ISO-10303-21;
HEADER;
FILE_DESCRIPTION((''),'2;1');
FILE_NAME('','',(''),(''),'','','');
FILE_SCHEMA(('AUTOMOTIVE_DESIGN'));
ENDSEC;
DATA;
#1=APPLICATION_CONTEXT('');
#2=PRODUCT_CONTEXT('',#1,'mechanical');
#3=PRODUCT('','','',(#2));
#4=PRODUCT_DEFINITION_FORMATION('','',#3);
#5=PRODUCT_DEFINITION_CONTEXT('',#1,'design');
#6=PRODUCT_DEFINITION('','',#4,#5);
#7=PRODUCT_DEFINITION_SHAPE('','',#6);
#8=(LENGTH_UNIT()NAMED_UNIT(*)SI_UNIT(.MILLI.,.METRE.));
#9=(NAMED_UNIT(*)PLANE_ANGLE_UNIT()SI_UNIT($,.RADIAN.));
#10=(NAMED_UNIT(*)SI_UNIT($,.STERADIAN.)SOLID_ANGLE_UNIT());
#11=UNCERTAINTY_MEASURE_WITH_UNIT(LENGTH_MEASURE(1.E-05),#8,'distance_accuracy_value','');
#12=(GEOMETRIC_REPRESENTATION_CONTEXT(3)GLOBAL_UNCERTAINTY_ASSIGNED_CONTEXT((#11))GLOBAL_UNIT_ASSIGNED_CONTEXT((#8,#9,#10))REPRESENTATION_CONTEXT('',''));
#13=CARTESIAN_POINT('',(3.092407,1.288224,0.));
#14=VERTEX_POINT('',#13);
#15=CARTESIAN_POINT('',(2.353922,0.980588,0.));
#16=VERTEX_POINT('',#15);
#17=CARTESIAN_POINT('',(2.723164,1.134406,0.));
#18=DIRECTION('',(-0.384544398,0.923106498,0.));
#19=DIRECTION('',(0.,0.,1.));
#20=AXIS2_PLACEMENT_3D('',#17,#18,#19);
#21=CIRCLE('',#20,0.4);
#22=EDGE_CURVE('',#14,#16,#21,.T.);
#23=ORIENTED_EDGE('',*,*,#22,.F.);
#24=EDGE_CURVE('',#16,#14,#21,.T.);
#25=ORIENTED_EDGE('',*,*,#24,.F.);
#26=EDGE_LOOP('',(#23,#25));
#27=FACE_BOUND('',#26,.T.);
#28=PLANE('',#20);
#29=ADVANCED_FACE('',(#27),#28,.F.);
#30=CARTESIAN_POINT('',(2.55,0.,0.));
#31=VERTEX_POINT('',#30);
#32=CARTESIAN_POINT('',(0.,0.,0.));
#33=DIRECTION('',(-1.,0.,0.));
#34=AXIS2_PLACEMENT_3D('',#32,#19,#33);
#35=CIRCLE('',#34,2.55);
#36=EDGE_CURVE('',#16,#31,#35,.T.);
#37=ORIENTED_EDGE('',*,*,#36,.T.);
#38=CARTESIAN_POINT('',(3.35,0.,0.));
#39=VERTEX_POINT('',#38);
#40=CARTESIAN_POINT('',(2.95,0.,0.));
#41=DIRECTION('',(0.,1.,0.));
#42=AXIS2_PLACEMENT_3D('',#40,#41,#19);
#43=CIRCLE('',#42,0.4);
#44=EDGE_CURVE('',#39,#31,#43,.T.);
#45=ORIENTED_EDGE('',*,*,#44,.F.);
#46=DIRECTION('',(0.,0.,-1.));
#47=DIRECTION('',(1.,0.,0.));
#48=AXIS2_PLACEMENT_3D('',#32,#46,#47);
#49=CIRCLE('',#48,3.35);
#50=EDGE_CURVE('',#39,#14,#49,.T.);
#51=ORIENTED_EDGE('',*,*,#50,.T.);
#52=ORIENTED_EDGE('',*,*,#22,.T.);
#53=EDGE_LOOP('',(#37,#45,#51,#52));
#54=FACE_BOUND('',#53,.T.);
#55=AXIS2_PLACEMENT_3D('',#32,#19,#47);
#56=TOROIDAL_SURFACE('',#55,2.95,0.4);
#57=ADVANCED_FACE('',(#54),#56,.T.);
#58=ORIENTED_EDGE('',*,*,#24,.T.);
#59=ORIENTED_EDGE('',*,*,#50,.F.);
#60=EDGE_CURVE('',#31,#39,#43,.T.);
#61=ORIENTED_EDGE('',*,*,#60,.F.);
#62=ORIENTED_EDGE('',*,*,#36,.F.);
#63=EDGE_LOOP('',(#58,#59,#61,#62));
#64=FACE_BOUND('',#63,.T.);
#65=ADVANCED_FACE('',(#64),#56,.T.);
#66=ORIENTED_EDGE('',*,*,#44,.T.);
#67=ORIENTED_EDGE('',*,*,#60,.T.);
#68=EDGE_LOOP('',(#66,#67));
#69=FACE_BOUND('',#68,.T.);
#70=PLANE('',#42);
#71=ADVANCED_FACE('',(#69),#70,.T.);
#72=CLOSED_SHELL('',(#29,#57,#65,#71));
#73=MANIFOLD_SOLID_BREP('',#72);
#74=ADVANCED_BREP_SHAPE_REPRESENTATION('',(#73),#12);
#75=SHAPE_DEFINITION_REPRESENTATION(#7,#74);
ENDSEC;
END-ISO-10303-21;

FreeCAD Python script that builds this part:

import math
import FreeCAD as App
import Part
import Sketcher
from FreeCAD import Vector
Q = App.Units.Quantity

doc = App.newDocument("Part")
body = doc.addObject("PartDesign::Body", "Body")

sketch1 = body.newObject("Sketcher::SketchObject", "Sketch")
sketch1.AttachmentSupport = (doc.getObject("XZ_Plane"), [""])
sketch1.MapMode = "FlatFace"
sketch1.addGeometry(Part.Circle(Vector(2.95, 0, 0), Vector(0, 0, 1), 0.4), False)
sketch1.addConstraint([
    Sketcher.Constraint("PointOnObject", 0, 3, -1),
    Sketcher.Constraint("Diameter", 0, Q("0.8 mm")),
    Sketcher.Constraint("DistanceX", -1, 1, 0, 3, Q("2.95 mm")),
])

sketch2 = body.newObject("Sketcher::SketchObject", "Sketch001")
sketch2.AttachmentSupport = (doc.getObject("XY_Plane"), [""])
sketch2.MapMode = "FlatFace"
sketch2.addGeometry(Part.ArcOfCircle(Part.Circle(Vector(0, 0, 0), Vector(0, 0, 1), 2.55), math.radians(22.615459), math.radians(360)), False)
sketch2.addConstraint([
    Sketcher.Constraint("Coincident", 0, 3, -1, 1),
    Sketcher.Constraint("PointOnObject", 0, 2, -1),
    Sketcher.Constraint("Radius", 0, Q("2.55 mm")),
    Sketcher.Constraint("DistanceX", -1, 1, 0, 1, Q("2.353922 mm")),
])
doc.recompute()

additivepipe = body.newObject("PartDesign::AdditivePipe", "AdditivePipe")
additivepipe.Profile = sketch1
additivepipe.Spine = (sketch2, ["Edge1"])

doc.recompute()
